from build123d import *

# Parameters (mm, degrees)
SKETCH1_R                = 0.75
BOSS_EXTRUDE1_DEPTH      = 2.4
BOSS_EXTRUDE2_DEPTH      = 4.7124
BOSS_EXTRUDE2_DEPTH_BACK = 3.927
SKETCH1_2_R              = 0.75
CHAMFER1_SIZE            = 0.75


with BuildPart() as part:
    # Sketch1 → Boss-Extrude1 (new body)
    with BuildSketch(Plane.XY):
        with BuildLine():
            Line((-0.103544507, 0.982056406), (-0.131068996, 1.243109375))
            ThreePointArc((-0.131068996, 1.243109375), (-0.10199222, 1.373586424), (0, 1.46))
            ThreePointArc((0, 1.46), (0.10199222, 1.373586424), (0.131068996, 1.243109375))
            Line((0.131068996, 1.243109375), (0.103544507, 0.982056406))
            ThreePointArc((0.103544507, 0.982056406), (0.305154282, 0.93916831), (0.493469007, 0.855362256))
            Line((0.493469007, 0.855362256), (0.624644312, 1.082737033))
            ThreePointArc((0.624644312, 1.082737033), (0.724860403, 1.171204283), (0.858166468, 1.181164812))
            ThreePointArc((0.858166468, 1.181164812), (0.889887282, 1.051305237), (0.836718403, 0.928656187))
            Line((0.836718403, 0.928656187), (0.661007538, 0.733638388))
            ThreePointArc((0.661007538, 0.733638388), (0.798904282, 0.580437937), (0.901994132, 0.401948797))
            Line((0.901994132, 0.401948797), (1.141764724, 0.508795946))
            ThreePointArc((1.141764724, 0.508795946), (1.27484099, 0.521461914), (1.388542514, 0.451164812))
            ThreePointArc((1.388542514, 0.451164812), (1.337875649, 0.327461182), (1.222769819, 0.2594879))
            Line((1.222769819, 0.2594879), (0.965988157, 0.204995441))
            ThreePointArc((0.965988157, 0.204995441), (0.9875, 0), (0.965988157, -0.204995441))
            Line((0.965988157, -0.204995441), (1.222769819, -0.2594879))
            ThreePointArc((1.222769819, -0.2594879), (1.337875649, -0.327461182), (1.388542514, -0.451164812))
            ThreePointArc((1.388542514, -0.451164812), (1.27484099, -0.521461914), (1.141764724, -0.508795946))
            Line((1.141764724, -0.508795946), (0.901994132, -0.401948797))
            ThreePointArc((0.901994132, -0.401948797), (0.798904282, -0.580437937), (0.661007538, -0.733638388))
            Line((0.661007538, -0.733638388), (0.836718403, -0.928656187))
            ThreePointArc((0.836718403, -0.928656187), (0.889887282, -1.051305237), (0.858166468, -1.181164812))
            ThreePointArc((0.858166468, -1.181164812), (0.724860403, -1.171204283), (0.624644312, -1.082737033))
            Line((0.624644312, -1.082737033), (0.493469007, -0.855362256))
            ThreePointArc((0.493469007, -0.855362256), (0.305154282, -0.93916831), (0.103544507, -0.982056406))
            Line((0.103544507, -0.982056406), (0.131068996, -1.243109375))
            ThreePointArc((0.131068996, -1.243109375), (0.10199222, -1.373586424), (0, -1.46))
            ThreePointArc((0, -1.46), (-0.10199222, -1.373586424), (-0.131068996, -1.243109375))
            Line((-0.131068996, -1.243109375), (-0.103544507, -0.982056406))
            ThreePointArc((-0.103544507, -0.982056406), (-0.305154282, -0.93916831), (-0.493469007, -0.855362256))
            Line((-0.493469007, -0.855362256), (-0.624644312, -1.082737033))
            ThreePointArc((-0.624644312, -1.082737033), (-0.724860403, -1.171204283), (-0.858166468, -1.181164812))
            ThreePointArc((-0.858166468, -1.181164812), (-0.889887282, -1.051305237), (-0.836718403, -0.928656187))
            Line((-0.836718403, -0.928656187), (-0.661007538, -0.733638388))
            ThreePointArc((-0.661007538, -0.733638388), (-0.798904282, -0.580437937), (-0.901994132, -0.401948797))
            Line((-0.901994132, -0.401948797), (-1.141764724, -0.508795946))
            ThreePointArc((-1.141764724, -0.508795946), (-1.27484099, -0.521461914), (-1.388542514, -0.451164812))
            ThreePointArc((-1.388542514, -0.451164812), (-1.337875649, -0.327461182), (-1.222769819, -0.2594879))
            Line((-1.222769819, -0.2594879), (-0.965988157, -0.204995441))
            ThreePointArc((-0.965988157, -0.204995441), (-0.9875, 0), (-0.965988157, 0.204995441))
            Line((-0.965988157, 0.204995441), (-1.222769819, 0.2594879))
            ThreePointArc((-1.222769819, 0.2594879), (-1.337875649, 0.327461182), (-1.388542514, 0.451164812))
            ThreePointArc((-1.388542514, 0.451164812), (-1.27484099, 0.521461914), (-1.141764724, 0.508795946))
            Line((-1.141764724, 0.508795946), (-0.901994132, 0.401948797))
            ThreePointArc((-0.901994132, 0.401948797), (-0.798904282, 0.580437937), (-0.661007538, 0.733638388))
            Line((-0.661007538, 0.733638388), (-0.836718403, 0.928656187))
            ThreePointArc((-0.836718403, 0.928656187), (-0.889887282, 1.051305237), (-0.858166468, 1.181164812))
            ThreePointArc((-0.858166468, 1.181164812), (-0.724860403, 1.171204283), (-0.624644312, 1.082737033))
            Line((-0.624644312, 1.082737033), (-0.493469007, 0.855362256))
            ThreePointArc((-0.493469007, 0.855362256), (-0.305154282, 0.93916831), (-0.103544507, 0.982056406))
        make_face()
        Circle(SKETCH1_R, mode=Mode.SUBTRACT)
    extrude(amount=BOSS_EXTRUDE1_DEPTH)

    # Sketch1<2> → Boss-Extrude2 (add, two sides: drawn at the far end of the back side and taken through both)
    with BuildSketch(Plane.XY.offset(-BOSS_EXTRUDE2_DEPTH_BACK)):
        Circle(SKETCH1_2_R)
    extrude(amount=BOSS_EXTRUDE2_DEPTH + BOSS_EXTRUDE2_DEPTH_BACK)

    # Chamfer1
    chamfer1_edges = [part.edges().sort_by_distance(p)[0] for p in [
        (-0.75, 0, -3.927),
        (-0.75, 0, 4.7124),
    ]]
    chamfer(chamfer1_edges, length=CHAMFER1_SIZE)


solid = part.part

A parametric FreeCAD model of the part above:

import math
import FreeCAD as App
import Part
import Sketcher
from FreeCAD import Vector
Q = App.Units.Quantity


def edges_at(feature, points):
    """Names of the edges that pass closest to the given points."""
    edges = feature.Shape.Edges
    near = lambda p: min(range(len(edges)), key=lambda i: edges[i].distToShape(Part.Vertex(*p))[0])
    return sorted({f"Edge{near(p) + 1}" for p in points})

doc = App.newDocument("Part")
body = doc.addObject("PartDesign::Body", "Body")

# Sketch on XY plane
sketch1 = doc.addObject("Sketcher::SketchObject", "Sketch")
body.addObject(sketch1)
sketch1.AttachmentSupport = (doc.XY_Plane, [""])
sketch1.MapMode = "FlatFace"
sketch1.addGeometry(Part.LineSegment(Vector(-0.13, 1.24, 0), Vector(-0.1, 0.98, 0)), False)
sketch1.addGeometry(Part.ArcOfCircle(Part.Circle(Vector(0, 0, 0), Vector(0, 0, 1), 0.99), math.radians(96), math.radians(120)), False)
sketch1.addGeometry(Part.LineSegment(Vector(-0.49, 0.86, 0), Vector(-0.62, 1.08, 0)), False)
sketch1.addGeometry(Part.ArcOfCircle(Part.Circle(Vector(-0.81, 0.98, 0), Vector(0, 0, 1), 0.21), math.radians(30), math.radians(104)), False)
sketch1.addGeometry(Part.ArcOfCircle(Part.Circle(Vector(-0.68, 1.07, 0), Vector(0, 0, 1), 0.21), math.radians(148), math.radians(222)), False)
sketch1.addGeometry(Part.LineSegment(Vector(-0.84, 0.93, 0), Vector(-0.66, 0.73, 0)), False)
sketch1.addGeometry(Part.ArcOfCircle(Part.Circle(Vector(0, 0, 0), Vector(0, 0, 1), 0.99), math.radians(132), math.radians(156)), False)
sketch1.addGeometry(Part.LineSegment(Vector(-0.9, 0.4, 0), Vector(-1.14, 0.51, 0)), False)
sketch1.addGeometry(Part.ArcOfCircle(Part.Circle(Vector(-1.23, 0.32, 0), Vector(0, 0, 1), 0.21), math.radians(66), math.radians(140)), False)
sketch1.addGeometry(Part.ArcOfCircle(Part.Circle(Vector(-1.18, 0.46, 0), Vector(0, 0, 1), 0.21), math.radians(-176), math.radians(-102)), False)
sketch1.addGeometry(Part.LineSegment(Vector(-1.22, 0.26, 0), Vector(-0.97, 0.2, 0)), False)
sketch1.addGeometry(Part.ArcOfCircle(Part.Circle(Vector(0, 0, 0), Vector(0, 0, 1), 0.99), math.radians(168), math.radians(192)), False)
sketch1.addGeometry(Part.LineSegment(Vector(-0.97, -0.2, 0), Vector(-1.22, -0.26, 0)), False)
sketch1.addGeometry(Part.ArcOfCircle(Part.Circle(Vector(-1.18, -0.46, 0), Vector(0, 0, 1), 0.21), math.radians(102), math.radians(176)), False)
sketch1.addGeometry(Part.ArcOfCircle(Part.Circle(Vector(-1.23, -0.32, 0), Vector(0, 0, 1), 0.21), math.radians(-140), math.radians(-66)), False)
sketch1.addGeometry(Part.LineSegment(Vector(-1.14, -0.51, 0), Vector(-0.9, -0.4, 0)), False)
sketch1.addGeometry(Part.ArcOfCircle(Part.Circle(Vector(0, 0, 0), Vector(0, 0, 1), 0.99), math.radians(-156), math.radians(-132)), False)
sketch1.addGeometry(Part.LineSegment(Vector(-0.66, -0.73, 0), Vector(-0.84, -0.93, 0)), False)
sketch1.addGeometry(Part.ArcOfCircle(Part.Circle(Vector(-0.68, -1.07, 0), Vector(0, 0, 1), 0.21), math.radians(138), math.radians(212)), False)
sketch1.addGeometry(Part.ArcOfCircle(Part.Circle(Vector(-0.81, -0.98, 0), Vector(0, 0, 1), 0.21), math.radians(-104), math.radians(-30)), False)
sketch1.addGeometry(Part.LineSegment(Vector(-0.62, -1.08, 0), Vector(-0.49, -0.86, 0)), False)
sketch1.addGeometry(Part.ArcOfCircle(Part.Circle(Vector(0, 0, 0), Vector(0, 0, 1), 0.99), math.radians(-120), math.radians(-96)), False)
sketch1.addGeometry(Part.LineSegment(Vector(-0.1, -0.98, 0), Vector(-0.13, -1.24, 0)), False)
sketch1.addGeometry(Part.ArcOfCircle(Part.Circle(Vector(0.08, -1.27, 0), Vector(0, 0, 1), 0.21), math.radians(174), math.radians(248)), False)
sketch1.addGeometry(Part.ArcOfCircle(Part.Circle(Vector(-0.08, -1.27, 0), Vector(0, 0, 1), 0.21), math.radians(-68), math.radians(6)), False)
sketch1.addGeometry(Part.LineSegment(Vector(0.13, -1.24, 0), Vector(0.1, -0.98, 0)), False)
sketch1.addGeometry(Part.ArcOfCircle(Part.Circle(Vector(0, 0, 0), Vector(0, 0, 1), 0.99), math.radians(-84), math.radians(-60)), False)
sketch1.addGeometry(Part.LineSegment(Vector(0.49, -0.86, 0), Vector(0.62, -1.08, 0)), False)
sketch1.addGeometry(Part.ArcOfCircle(Part.Circle(Vector(0.81, -0.98, 0), Vector(0, 0, 1), 0.21), math.radians(-150), math.radians(-76)), False)
sketch1.addGeometry(Part.ArcOfCircle(Part.Circle(Vector(0.68, -1.07, 0), Vector(0, 0, 1), 0.21), math.radians(-32), math.radians(42)), False)
sketch1.addGeometry(Part.LineSegment(Vector(0.84, -0.93, 0), Vector(0.66, -0.73, 0)), False)
sketch1.addGeometry(Part.ArcOfCircle(Part.Circle(Vector(0, 0, 0), Vector(0, 0, 1), 0.99), math.radians(-48), math.radians(-24)), False)
sketch1.addGeometry(Part.LineSegment(Vector(0.9, -0.4, 0), Vector(1.14, -0.51, 0)), False)
sketch1.addGeometry(Part.ArcOfCircle(Part.Circle(Vector(1.23, -0.32, 0), Vector(0, 0, 1), 0.21), math.radians(-114), math.radians(-40)), False)
sketch1.addGeometry(Part.ArcOfCircle(Part.Circle(Vector(1.18, -0.46, 0), Vector(0, 0, 1), 0.21), math.radians(4), math.radians(78)), False)
sketch1.addGeometry(Part.LineSegment(Vector(1.22, -0.26, 0), Vector(0.97, -0.2, 0)), False)
sketch1.addGeometry(Part.ArcOfCircle(Part.Circle(Vector(0, 0, 0), Vector(0, 0, 1), 0.99), math.radians(-12), math.radians(12)), False)
sketch1.addGeometry(Part.LineSegment(Vector(0.97, 0.2, 0), Vector(1.22, 0.26, 0)), False)
sketch1.addGeometry(Part.ArcOfCircle(Part.Circle(Vector(1.18, 0.46, 0), Vector(0, 0, 1), 0.21), math.radians(-78), math.radians(-4)), False)
sketch1.addGeometry(Part.ArcOfCircle(Part.Circle(Vector(1.23, 0.32, 0), Vector(0, 0, 1), 0.21), math.radians(40), math.radians(114)), False)
sketch1.addGeometry(Part.LineSegment(Vector(1.14, 0.51, 0), Vector(0.9, 0.4, 0)), False)
sketch1.addGeometry(Part.ArcOfCircle(Part.Circle(Vector(0, 0, 0), Vector(0, 0, 1), 0.99), math.radians(24), math.radians(48)), False)
sketch1.addGeometry(Part.LineSegment(Vector(0.66, 0.73, 0), Vector(0.84, 0.93, 0)), False)
sketch1.addGeometry(Part.ArcOfCircle(Part.Circle(Vector(0.68, 1.07, 0), Vector(0, 0, 1), 0.21), math.radians(-42), math.radians(32)), False)
sketch1.addGeometry(Part.ArcOfCircle(Part.Circle(Vector(0.81, 0.98, 0), Vector(0, 0, 1), 0.21), math.radians(76), math.radians(150)), False)
sketch1.addGeometry(Part.LineSegment(Vector(0.62, 1.08, 0), Vector(0.49, 0.86, 0)), False)
sketch1.addGeometry(Part.ArcOfCircle(Part.Circle(Vector(0, 0, 0), Vector(0, 0, 1), 0.99), math.radians(60), math.radians(84)), False)
sketch1.addGeometry(Part.LineSegment(Vector(0.1, 0.98, 0), Vector(0.13, 1.24, 0)), False)
sketch1.addGeometry(Part.ArcOfCircle(Part.Circle(Vector(-0.08, 1.27, 0), Vector(0, 0, 1), 0.21), math.radians(-6), math.radians(68)), False)
sketch1.addGeometry(Part.ArcOfCircle(Part.Circle(Vector(0.08, 1.27, 0), Vector(0, 0, 1), 0.21), math.radians(112), math.radians(186)), False)
sketch1.addGeometry(Part.Circle(Vector(0, 0, 0), Vector(0, 0, 1), 0.75), False)
sketch1.addConstraint(Sketcher.Constraint("Coincident", 0, 2, 1, 1))
sketch1.addConstraint(Sketcher.Constraint("Coincident", 1, 2, 2, 1))
sketch1.addConstraint(Sketcher.Constraint("Tangent", 2, 2, 3, 1))
sketch1.addConstraint(Sketcher.Constraint("Coincident", 3, 2, 4, 1))
sketch1.addConstraint(Sketcher.Constraint("Tangent", 4, 2, 5, 1))
sketch1.addConstraint(Sketcher.Constraint("Coincident", 5, 2, 6, 1))
sketch1.addConstraint(Sketcher.Constraint("Coincident", 6, 2, 7, 1))
sketch1.addConstraint(Sketcher.Constraint("Tangent", 7, 2, 8, 1))
sketch1.addConstraint(Sketcher.Constraint("Coincident", 8, 2, 9, 1))
sketch1.addConstraint(Sketcher.Constraint("Tangent", 9, 2, 10, 1))
sketch1.addConstraint(Sketcher.Constraint("Coincident", 10, 2, 11, 1))
sketch1.addConstraint(Sketcher.Constraint("Coincident", 11, 2, 12, 1))
sketch1.addConstraint(Sketcher.Constraint("Tangent", 12, 2, 13, 1))
sketch1.addConstraint(Sketcher.Constraint("Coincident", 13, 2, 14, 1))
sketch1.addConstraint(Sketcher.Constraint("Tangent", 14, 2, 15, 1))
sketch1.addConstraint(Sketcher.Constraint("Coincident", 15, 2, 16, 1))
sketch1.addConstraint(Sketcher.Constraint("Coincident", 16, 2, 17, 1))
sketch1.addConstraint(Sketcher.Constraint("Tangent", 17, 2, 18, 1))
sketch1.addConstraint(Sketcher.Constraint("Coincident", 18, 2, 19, 1))
sketch1.addConstraint(Sketcher.Constraint("Tangent", 19, 2, 20, 1))
sketch1.addConstraint(Sketcher.Constraint("Coincident", 20, 2, 21, 1))
sketch1.addConstraint(Sketcher.Constraint("Coincident", 21, 2, 22, 1))
sketch1.addConstraint(Sketcher.Constraint("Tangent", 22, 2, 23, 1))
sketch1.addConstraint(Sketcher.Constraint("Coincident", 23, 2, 24, 1))
sketch1.addConstraint(Sketcher.Constraint("Tangent", 24, 2, 25, 1))
sketch1.addConstraint(Sketcher.Constraint("Coincident", 25, 2, 26, 1))
sketch1.addConstraint(Sketcher.Constraint("Coincident", 26, 2, 27, 1))
sketch1.addConstraint(Sketcher.Constraint("Tangent", 27, 2, 28, 1))
sketch1.addConstraint(Sketcher.Constraint("Coincident", 28, 2, 29, 1))
sketch1.addConstraint(Sketcher.Constraint("Tangent", 29, 2, 30, 1))
sketch1.addConstraint(Sketcher.Constraint("Coincident", 30, 2, 31, 1))
sketch1.addConstraint(Sketcher.Constraint("Coincident", 31, 2, 32, 1))
sketch1.addConstraint(Sketcher.Constraint("Tangent", 32, 2, 33, 1))
sketch1.addConstraint(Sketcher.Constraint("Coincident", 33, 2, 34, 1))
sketch1.addConstraint(Sketcher.Constraint("Tangent", 34, 2, 35, 1))
sketch1.addConstraint(Sketcher.Constraint("Coincident", 35, 2, 36, 1))
sketch1.addConstraint(Sketcher.Constraint("Coincident", 36, 2, 37, 1))
sketch1.addConstraint(Sketcher.Constraint("Tangent", 37, 2, 38, 1))
sketch1.addConstraint(Sketcher.Constraint("Coincident", 38, 2, 39, 1))
sketch1.addConstraint(Sketcher.Constraint("Tangent", 39, 2, 40, 1))
sketch1.addConstraint(Sketcher.Constraint("Coincident", 40, 2, 41, 1))
sketch1.addConstraint(Sketcher.Constraint("Coincident", 41, 2, 42, 1))
sketch1.addConstraint(Sketcher.Constraint("Tangent", 42, 2, 43, 1))
sketch1.addConstraint(Sketcher.Constraint("Coincident", 43, 2, 44, 1))
sketch1.addConstraint(Sketcher.Constraint("Tangent", 44, 2, 45, 1))
sketch1.addConstraint(Sketcher.Constraint("Coincident", 45, 2, 46, 1))
sketch1.addConstraint(Sketcher.Constraint("Coincident", 46, 2, 47, 1))
sketch1.addConstraint(Sketcher.Constraint("Tangent", 47, 2, 48, 1))
sketch1.addConstraint(Sketcher.Constraint("Coincident", 48, 2, 49, 1))
sketch1.addConstraint(Sketcher.Constraint("Tangent", 49, 2, 0, 1))
sketch1.addConstraint(Sketcher.Constraint("Coincident", 1, 3, -1, 1))
sketch1.addConstraint(Sketcher.Constraint("Coincident", 6, 3, -1, 1))
sketch1.addConstraint(Sketcher.Constraint("Coincident", 11, 3, -1, 1))
sketch1.addConstraint(Sketcher.Constraint("Coincident", 16, 3, -1, 1))
sketch1.addConstraint(Sketcher.Constraint("Coincident", 21, 3, -1, 1))
sketch1.addConstraint(Sketcher.Constraint("Coincident", 26, 3, -1, 1))
sketch1.addConstraint(Sketcher.Constraint("Coincident", 31, 3, -1, 1))
sketch1.addConstraint(Sketcher.Constraint("Coincident", 36, 3, -1, 1))
sketch1.addConstraint(Sketcher.Constraint("Coincident", 41, 3, -1, 1))
sketch1.addConstraint(Sketcher.Constraint("Coincident", 46, 3, -1, 1))
sketch1.addConstraint(Sketcher.Constraint("Coincident", 50, 3, -1, 1))
sketch1.addConstraint(Sketcher.Constraint("Equal", 3, 4))
sketch1.addConstraint(Sketcher.Constraint("Equal", 1, 6))
sketch1.addConstraint(Sketcher.Constraint("Equal", 4, 8))
sketch1.addConstraint(Sketcher.Constraint("Equal", 8, 9))
sketch1.addConstraint(Sketcher.Constraint("Equal", 6, 11))
sketch1.addConstraint(Sketcher.Constraint("Equal", 9, 13))
sketch1.addConstraint(Sketcher.Constraint("Equal", 13, 14))
sketch1.addConstraint(Sketcher.Constraint("Equal", 11, 16))
sketch1.addConstraint(Sketcher.Constraint("Equal", 14, 18))
sketch1.addConstraint(Sketcher.Constraint("Equal", 18, 19))
sketch1.addConstraint(Sketcher.Constraint("Equal", 16, 21))
sketch1.addConstraint(Sketcher.Constraint("Equal", 19, 23))
sketch1.addConstraint(Sketcher.Constraint("Equal", 23, 24))
sketch1.addConstraint(Sketcher.Constraint("Equal", 21, 26))
sketch1.addConstraint(Sketcher.Constraint("Equal", 24, 28))
sketch1.addConstraint(Sketcher.Constraint("Equal", 28, 29))
sketch1.addConstraint(Sketcher.Constraint("Equal", 26, 31))
sketch1.addConstraint(Sketcher.Constraint("Equal", 29, 33))
sketch1.addConstraint(Sketcher.Constraint("Equal", 33, 34))
sketch1.addConstraint(Sketcher.Constraint("Equal", 31, 36))
sketch1.addConstraint(Sketcher.Constraint("Equal", 34, 38))
sketch1.addConstraint(Sketcher.Constraint("Equal", 38, 39))
sketch1.addConstraint(Sketcher.Constraint("Equal", 36, 41))
sketch1.addConstraint(Sketcher.Constraint("Equal", 39, 43))
sketch1.addConstraint(Sketcher.Constraint("Equal", 43, 44))
sketch1.addConstraint(Sketcher.Constraint("Equal", 41, 46))
sketch1.addConstraint(Sketcher.Constraint("Equal", 44, 48))
sketch1.addConstraint(Sketcher.Constraint("Equal", 48, 49))
sketch1.addConstraint(Sketcher.Constraint("Symmetric", 3, 3, 28, 3, -1, 1))
sketch1.addConstraint(Sketcher.Constraint("Symmetric", 4, 3, 29, 3, -1, 1))
sketch1.addConstraint(Sketcher.Constraint("Symmetric", 8, 3, 33, 3, -1, 1))
sketch1.addConstraint(Sketcher.Constraint("Symmetric", 9, 3, 34, 3, -1, 1))
sketch1.addConstraint(Sketcher.Constraint("Symmetric", 13, 3, 38, 3, -1, 1))
sketch1.addConstraint(Sketcher.Constraint("Symmetric", 14, 3, 39, 3, -1, 1))
sketch1.addConstraint(Sketcher.Constraint("Symmetric", 18, 3, 43, 3, -1, 1))
sketch1.addConstraint(Sketcher.Constraint("Symmetric", 19, 3, 44, 3, -1, 1))
sketch1.addConstraint(Sketcher.Constraint("Symmetric", 23, 3, 48, 3, -1, 1))
sketch1.addConstraint(Sketcher.Constraint("Symmetric", 24, 3, 49, 3, -1, 1))
sketch1.addConstraint(Sketcher.Constraint("Symmetric", 23, 3, 24, 3, -2))
sketch1.addConstraint(Sketcher.Constraint("Symmetric", 19, 3, 28, 3, -2))
sketch1.addConstraint(Sketcher.Constraint("Symmetric", 18, 3, 29, 3, -2))
sketch1.addConstraint(Sketcher.Constraint("Symmetric", 14, 3, 33, 3, -2))
sketch1.addConstraint(Sketcher.Constraint("Symmetric", 13, 3, 34, 3, -2))
sketch1.addConstraint(Sketcher.Constraint("Parallel", 0, 25))
sketch1.addConstraint(Sketcher.Constraint("Parallel", 2, 27))
sketch1.addConstraint(Sketcher.Constraint("Parallel", 5, 30))
sketch1.addConstraint(Sketcher.Constraint("Parallel", 7, 32))
sketch1.addConstraint(Sketcher.Constraint("Parallel", 10, 35))
sketch1.addConstraint(Sketcher.Constraint("Parallel", 12, 37))
sketch1.addConstraint(Sketcher.Constraint("Parallel", 15, 40))
sketch1.addConstraint(Sketcher.Constraint("Parallel", 17, 42))
sketch1.addConstraint(Sketcher.Constraint("Parallel", 20, 45))
sketch1.addConstraint(Sketcher.Constraint("Parallel", 22, 47))
sketch1.addConstraint(Sketcher.Constraint("Horizontal", 22, 2, 24, 2))
sketch1.addConstraint(Sketcher.Constraint("Horizontal", 20, 2, 26, 2))
sketch1.addConstraint(Sketcher.Constraint("Horizontal", 17, 2, 29, 2))
sketch1.addConstraint(Sketcher.Constraint("Horizontal", 15, 2, 31, 2))
sketch1.addConstraint(Sketcher.Constraint("Horizontal", 12, 2, 34, 2))
sketch1.addConstraint(Sketcher.Constraint("Equal", 0, 2))
sketch1.addConstraint(Sketcher.Constraint("Equal", 2, 5))
sketch1.addConstraint(Sketcher.Constraint("Equal", 5, 7))
sketch1.addConstraint(Sketcher.Constraint("Equal", 7, 10))
sketch1.addConstraint(Sketcher.Constraint("Diameter", 50, Q("1.5 mm")))
sketch1.addConstraint(Sketcher.Constraint("Radius", 1, Q("0.9875 mm")))
sketch1.addConstraint(Sketcher.Constraint("DistanceY", 23, 2, -1, 1, Q("1.46 mm")))
sketch1.addConstraint(Sketcher.Constraint("Radius", 3, Q("0.20975 mm")))
sketch1.addConstraint(Sketcher.Constraint("Distance", 0, Q("0.2625 mm")))
sketch1.addConstraint(Sketcher.Constraint("DistanceY", -1, 1, 3, 3, Q("0.977922 mm")))
sketch1.addConstraint(Sketcher.Constraint("DistanceX", 4, 3, -1, 1, Q("0.68089 mm")))
sketch1.addConstraint(Sketcher.Constraint("DistanceX", 8, 3, -1, 1, Q("1.227141 mm")))
sketch1.addConstraint(Sketcher.Constraint("DistanceY", -1, 1, 9, 3, Q("0.464669 mm")))
sketch1.addConstraint(Sketcher.Constraint("DistanceX", 1, 2, -1, 1, Q("0.493469 mm")))
sketch1.addConstraint(Sketcher.Constraint("DistanceX", 4, 2, -1, 1, Q("0.836718 mm")))
sketch1.addConstraint(Sketcher.Constraint("DistanceY", -1, 1, 6, 2, Q("0.401949 mm")))
sketch1.addConstraint(Sketcher.Constraint("DistanceX", 9, 2, -1, 1, Q("1.22277 mm")))
sketch1.addConstraint(Sketcher.Constraint("DistanceX", 22, 2, -1, 1, Q("0.131069 mm")))
pad1 = doc.addObject("PartDesign::Pad", "Pad")
body.addObject(pad1)
pad1.Profile = sketch1
pad1.Length = 2.4

# Sketch on XY plane
sketch2 = doc.addObject("Sketcher::SketchObject", "Sketch001")
body.addObject(sketch2)
sketch2.AttachmentSupport = (doc.XY_Plane, [""])
sketch2.MapMode = "FlatFace"
sketch2.addGeometry(Part.Circle(Vector(0, 0, 0), Vector(0, 0, 1), 0.8), False)
sketch2.addConstraint(Sketcher.Constraint("Coincident", 0, 3, -1, 1))
sketch2.addConstraint(Sketcher.Constraint("Diameter", 0, Q("1.5 mm")))
pad2 = doc.addObject("PartDesign::Pad", "Pad001")
body.addObject(pad2)
pad2.Profile = sketch2
pad2.Type = "TwoLengths"
pad2.Length = 4.7124
pad2.Length2 = 3.927
doc.recompute()

chamfer = doc.addObject("PartDesign::Chamfer", "Chamfer")
body.addObject(chamfer)
chamfer.Base = (pad2, edges_at(pad2, [(-0.75, 0, -3.927), (-0.75, 0, 4.712)]))
chamfer.Size = 0.75

doc.recompute()
